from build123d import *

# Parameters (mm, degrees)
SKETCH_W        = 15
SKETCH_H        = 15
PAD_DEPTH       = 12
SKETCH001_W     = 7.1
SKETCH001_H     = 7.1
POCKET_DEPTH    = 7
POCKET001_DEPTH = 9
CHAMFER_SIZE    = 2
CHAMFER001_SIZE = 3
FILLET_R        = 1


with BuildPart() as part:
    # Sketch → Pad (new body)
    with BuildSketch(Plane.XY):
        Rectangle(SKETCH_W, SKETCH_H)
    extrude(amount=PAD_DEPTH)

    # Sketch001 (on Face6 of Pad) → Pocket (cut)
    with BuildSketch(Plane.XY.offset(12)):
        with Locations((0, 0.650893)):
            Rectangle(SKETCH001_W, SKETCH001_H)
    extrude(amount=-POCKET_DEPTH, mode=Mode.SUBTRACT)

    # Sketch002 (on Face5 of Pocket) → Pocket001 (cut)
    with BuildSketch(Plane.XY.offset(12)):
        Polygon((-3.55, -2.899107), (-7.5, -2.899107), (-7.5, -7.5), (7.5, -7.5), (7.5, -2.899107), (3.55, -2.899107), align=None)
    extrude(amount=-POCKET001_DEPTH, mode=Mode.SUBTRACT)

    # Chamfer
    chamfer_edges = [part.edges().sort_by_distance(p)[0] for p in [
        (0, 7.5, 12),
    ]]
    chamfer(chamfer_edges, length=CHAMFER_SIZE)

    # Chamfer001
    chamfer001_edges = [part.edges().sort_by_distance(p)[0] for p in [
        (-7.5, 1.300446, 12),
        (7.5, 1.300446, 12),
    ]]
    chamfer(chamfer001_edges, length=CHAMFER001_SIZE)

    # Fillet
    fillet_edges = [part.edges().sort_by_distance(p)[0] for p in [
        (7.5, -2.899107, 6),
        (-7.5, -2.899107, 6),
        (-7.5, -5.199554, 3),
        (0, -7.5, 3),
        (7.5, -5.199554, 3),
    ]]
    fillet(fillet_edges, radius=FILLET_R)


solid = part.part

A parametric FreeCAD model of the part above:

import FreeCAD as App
import Part
import Sketcher

V = App.Vector
Q = App.Units.Quantity


def edges_at(feature, points):
    """Names of the edges that pass closest to the given points."""
    edges = feature.Shape.Edges
    near = lambda p: min(range(len(edges)), key=lambda i: edges[i].distToShape(Part.Vertex(*p))[0])
    return sorted({f"Edge{near(p) + 1}" for p in points})

doc = App.newDocument("Part")
params = doc.addObject("Spreadsheet::Sheet", "Params")
for row, (alias, value) in enumerate([
    ("sketch1_width", "15 mm"),
    ("pad1_length", "12 mm"),
    ("sketch2_width", "7.1 mm"),
    ("pocket1_length", "7 mm"),
    ("sketch3_width", "15 mm"),
    ("pocket2_length", "9 mm"),
    ("chamfer_size", "2 mm"),
    ("chamfer2_size", "3 mm"),
    ("fillet_radius", "1 mm"),
], start=1):
    params.set(f"A{row}", alias)
    params.set(f"B{row}", "=" + value)
    params.setAlias(f"B{row}", alias)

body = doc.addObject("PartDesign::Body", "Body")

# Sketch on XY plane
sketch1 = body.newObject("Sketcher::SketchObject", "Sketch")
sketch1.AttachmentSupport = (doc.getObject("XY_Plane"), [""])
sketch1.MapMode = "FlatFace"
sketch1.addGeometry([
    Part.LineSegment(V(-7.5, 7.5, 0), V(-7.5, -7.5, 0)),
    Part.LineSegment(V(-7.5, -7.5, 0), V(7.5, -7.5, 0)),
    Part.LineSegment(V(7.5, -7.5, 0), V(7.5, 7.5, 0)),
    Part.LineSegment(V(7.5, 7.5, 0), V(-7.5, 7.5, 0)),
], False)
sketch1.addConstraint([
    Sketcher.Constraint("Coincident", 0, 2, 1, 1),
    Sketcher.Constraint("Coincident", 1, 2, 2, 1),
    Sketcher.Constraint("Coincident", 2, 2, 3, 1),
    Sketcher.Constraint("Coincident", 3, 2, 0, 1),
    Sketcher.Constraint("Vertical", 0),
    Sketcher.Constraint("Horizontal", 1),
    Sketcher.Constraint("Vertical", 2),
    Sketcher.Constraint("Horizontal", 3),
    Sketcher.Constraint("Symmetric", 0, 2, 2, 2, -1, 1),
    Sketcher.Constraint("Equal", 3, 0),
    Sketcher.Constraint("DistanceX", 1, 1, 1, 2, Q("15 mm")),
])
sketch1.setExpression("Constraints[10]", "Params.sketch1_width")
pad1 = body.newObject("PartDesign::Pad", "Pad")
pad1.Profile = sketch1
pad1.setExpression("Length", "Params.pad1_length")

# Sketch on XY plane
sketch2 = body.newObject("Sketcher::SketchObject", "Sketch001")
sketch2.AttachmentSupport = (doc.getObject("XY_Plane"), [""])
sketch2.MapMode = "FlatFace"
sketch2.AttachmentOffset = App.Placement(V(0, 0, 12), App.Rotation())
sketch2.addGeometry([
    Part.LineSegment(V(-3.55, 4.200893, 0), V(-3.55, -2.899107, 0)),
    Part.LineSegment(V(-3.55, -2.899107, 0), V(3.55, -2.899107, 0)),
    Part.LineSegment(V(3.55, -2.899107, 0), V(3.55, 4.200893, 0)),
    Part.LineSegment(V(3.55, 4.200893, 0), V(-3.55, 4.200893, 0)),
], False)
sketch2.addConstraint([
    Sketcher.Constraint("Coincident", 0, 2, 1, 1),
    Sketcher.Constraint("Coincident", 1, 2, 2, 1),
    Sketcher.Constraint("Coincident", 2, 2, 3, 1),
    Sketcher.Constraint("Coincident", 3, 2, 0, 1),
    Sketcher.Constraint("Vertical", 0),
    Sketcher.Constraint("Horizontal", 1),
    Sketcher.Constraint("Vertical", 2),
    Sketcher.Constraint("Horizontal", 3),
    Sketcher.Constraint("Equal", 3, 0),
    Sketcher.Constraint("DistanceX", 1, 1, 1, 2, Q("7.1 mm")),
    Sketcher.Constraint("DistanceX", 0, 2, -1, 1, Q("3.55 mm")),
    Sketcher.Constraint("DistanceY", 0, 2, -1, 1, Q("2.899107 mm")),
])
sketch2.setExpression("Constraints[9]", "Params.sketch2_width")
pocket1 = body.newObject("PartDesign::Pocket", "Pocket")
pocket1.Profile = sketch2
pocket1.setExpression("Length", "Params.pocket1_length")

# Sketch on XY plane
sketch3 = body.newObject("Sketcher::SketchObject", "Sketch002")
sketch3.AttachmentSupport = (doc.getObject("XY_Plane"), [""])
sketch3.MapMode = "FlatFace"
sketch3.AttachmentOffset = App.Placement(V(0, 0, 12), App.Rotation())
sketch3.addGeometry([
    Part.LineSegment(V(-7.5, -2.899107, 0), V(-7.5, -7.5, 0)),
    Part.LineSegment(V(-7.5, -7.5, 0), V(7.5, -7.5, 0)),
    Part.LineSegment(V(7.5, -7.5, 0), V(7.5, -2.899107, 0)),
    Part.LineSegment(V(7.5, -2.899107, 0), V(-7.5, -2.899107, 0)),
], False)
sketch3.addConstraint([
    Sketcher.Constraint("Coincident", 0, 2, 1, 1),
    Sketcher.Constraint("Coincident", 1, 2, 2, 1),
    Sketcher.Constraint("Coincident", 2, 2, 3, 1),
    Sketcher.Constraint("Coincident", 3, 2, 0, 1),
    Sketcher.Constraint("Vertical", 0),
    Sketcher.Constraint("Horizontal", 1),
    Sketcher.Constraint("Vertical", 2),
    Sketcher.Constraint("Horizontal", 3),
    Sketcher.Constraint("DistanceX", 1, 1, 1, 2, Q("15 mm")),
    Sketcher.Constraint("DistanceX", 0, 2, -1, 1, Q("7.5 mm")),
    Sketcher.Constraint("DistanceY", 0, 2, -1, 1, Q("7.5 mm")),
    Sketcher.Constraint("DistanceY", 0, 2, 0, 1, Q("4.600893 mm")),
])
sketch3.setExpression("Constraints[8]", "Params.sketch3_width")
pocket2 = body.newObject("PartDesign::Pocket", "Pocket001")
pocket2.Profile = sketch3
pocket2.setExpression("Length", "Params.pocket2_length")
doc.recompute()

chamfer = body.newObject("PartDesign::Chamfer", "Chamfer")
chamfer.Base = (pocket2, edges_at(pocket2, [(0, 7.5, 12)]))
chamfer.setExpression("Size", "Params.chamfer_size")
doc.recompute()

chamfer2 = body.newObject("PartDesign::Chamfer", "Chamfer001")
chamfer2.Base = (chamfer, edges_at(chamfer, [(-7.5, 1.3, 12), (7.5, 1.3, 12)]))
chamfer2.setExpression("Size", "Params.chamfer2_size")
doc.recompute()

fillet = body.newObject("PartDesign::Fillet", "Fillet")
fillet.Base = (chamfer2, edges_at(chamfer2, [
    (7.5, -2.899, 6),
    (-7.5, -2.899, 6),
    (-7.5, -5.2, 3),
    (0, -7.5, 3),
    (7.5, -5.2, 3),
]))
fillet.setExpression("Radius", "Params.fillet_radius")

doc.recompute()
